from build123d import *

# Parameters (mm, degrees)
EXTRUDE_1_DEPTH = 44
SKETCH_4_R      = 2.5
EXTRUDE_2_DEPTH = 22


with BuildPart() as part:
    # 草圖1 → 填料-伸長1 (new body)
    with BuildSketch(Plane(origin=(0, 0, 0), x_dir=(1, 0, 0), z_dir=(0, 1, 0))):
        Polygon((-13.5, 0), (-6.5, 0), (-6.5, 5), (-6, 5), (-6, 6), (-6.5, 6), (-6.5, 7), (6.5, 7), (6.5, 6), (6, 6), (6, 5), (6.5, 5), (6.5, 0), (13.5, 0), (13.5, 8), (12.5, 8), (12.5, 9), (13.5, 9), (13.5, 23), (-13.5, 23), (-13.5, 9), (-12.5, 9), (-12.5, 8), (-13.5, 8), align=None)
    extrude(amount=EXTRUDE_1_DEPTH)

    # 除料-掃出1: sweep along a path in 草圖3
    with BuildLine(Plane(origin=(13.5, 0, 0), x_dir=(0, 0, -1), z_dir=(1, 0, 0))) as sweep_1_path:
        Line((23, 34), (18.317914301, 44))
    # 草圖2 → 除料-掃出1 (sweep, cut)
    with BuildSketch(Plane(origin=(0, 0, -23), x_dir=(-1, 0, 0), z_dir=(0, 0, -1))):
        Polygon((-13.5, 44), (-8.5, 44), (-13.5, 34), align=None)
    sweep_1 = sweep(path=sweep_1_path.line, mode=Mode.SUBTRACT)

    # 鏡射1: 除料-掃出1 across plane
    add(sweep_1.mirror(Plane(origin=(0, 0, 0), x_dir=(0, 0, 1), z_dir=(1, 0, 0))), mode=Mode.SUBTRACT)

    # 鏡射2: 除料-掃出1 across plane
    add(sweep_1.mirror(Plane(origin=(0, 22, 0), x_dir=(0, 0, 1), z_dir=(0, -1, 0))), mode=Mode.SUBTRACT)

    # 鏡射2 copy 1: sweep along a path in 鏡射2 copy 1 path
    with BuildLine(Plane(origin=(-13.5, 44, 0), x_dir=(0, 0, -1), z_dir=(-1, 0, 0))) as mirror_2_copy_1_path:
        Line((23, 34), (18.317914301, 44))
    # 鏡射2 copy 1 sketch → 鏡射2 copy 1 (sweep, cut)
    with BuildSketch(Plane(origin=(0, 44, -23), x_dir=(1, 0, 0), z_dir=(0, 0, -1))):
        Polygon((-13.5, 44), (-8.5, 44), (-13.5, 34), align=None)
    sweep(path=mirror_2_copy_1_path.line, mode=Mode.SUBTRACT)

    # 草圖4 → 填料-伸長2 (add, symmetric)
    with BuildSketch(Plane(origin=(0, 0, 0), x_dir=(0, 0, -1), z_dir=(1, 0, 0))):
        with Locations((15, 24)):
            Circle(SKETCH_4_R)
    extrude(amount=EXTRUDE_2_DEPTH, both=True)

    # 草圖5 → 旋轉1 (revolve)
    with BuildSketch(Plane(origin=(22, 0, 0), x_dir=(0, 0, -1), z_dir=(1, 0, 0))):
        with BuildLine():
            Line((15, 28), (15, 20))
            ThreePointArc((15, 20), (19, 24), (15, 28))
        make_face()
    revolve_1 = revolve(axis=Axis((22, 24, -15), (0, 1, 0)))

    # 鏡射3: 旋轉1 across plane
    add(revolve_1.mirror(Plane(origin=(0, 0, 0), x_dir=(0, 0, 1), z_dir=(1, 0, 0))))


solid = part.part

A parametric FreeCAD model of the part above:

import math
import FreeCAD as App
import Part
import Sketcher
from FreeCAD import Vector

doc = App.newDocument("Part")
body = doc.addObject("PartDesign::Body", "Body")

# Sketch on XZ plane
sketch1 = doc.addObject("Sketcher::SketchObject", "Sketch")
body.addObject(sketch1)
sketch1.AttachmentSupport = (doc.XZ_Plane, [""])
sketch1.MapMode = "FlatFace"
sketch1.addGeometry([
    Part.LineSegment(Vector(-13.5, 0, 0), Vector(-6.5, 0, 0)),  # 0
    Part.LineSegment(Vector(-6.5, 0, 0), Vector(-6.5, -5, 0)),  # 1
    Part.LineSegment(Vector(-6.5, -5, 0), Vector(-6, -5, 0)),  # 2
    Part.LineSegment(Vector(-6, -5, 0), Vector(-6, -6, 0)),  # 3
    Part.LineSegment(Vector(-6, -6, 0), Vector(-6.5, -6, 0)),  # 4
    Part.LineSegment(Vector(-6.5, -6, 0), Vector(-6.5, -7, 0)),  # 5
    Part.LineSegment(Vector(-6.5, -7, 0), Vector(6.5, -7, 0)),  # 6
    Part.LineSegment(Vector(6.5, -7, 0), Vector(6.5, -6, 0)),  # 7
    Part.LineSegment(Vector(6.5, -6, 0), Vector(6, -6, 0)),  # 8
    Part.LineSegment(Vector(6, -6, 0), Vector(6, -5, 0)),  # 9
    Part.LineSegment(Vector(6, -5, 0), Vector(6.5, -5, 0)),  # 10
    Part.LineSegment(Vector(6.5, -5, 0), Vector(6.5, 0, 0)),  # 11
    Part.LineSegment(Vector(6.5, 0, 0), Vector(13.5, 0, 0)),  # 12
    Part.LineSegment(Vector(13.5, 0, 0), Vector(13.5, -8, 0)),  # 13
    Part.LineSegment(Vector(13.5, -8, 0), Vector(12.5, -8, 0)),  # 14
    Part.LineSegment(Vector(12.5, -8, 0), Vector(12.5, -9, 0)),  # 15
    Part.LineSegment(Vector(12.5, -9, 0), Vector(13.5, -9, 0)),  # 16
    Part.LineSegment(Vector(13.5, -9, 0), Vector(13.5, -23, 0)),  # 17
    Part.LineSegment(Vector(13.5, -23, 0), Vector(-13.5, -23, 0)),  # 18
    Part.LineSegment(Vector(-13.5, -23, 0), Vector(-13.5, -9, 0)),  # 19
    Part.LineSegment(Vector(-13.5, -9, 0), Vector(-12.5, -9, 0)),  # 20
    Part.LineSegment(Vector(-12.5, -9, 0), Vector(-12.5, -8, 0)),  # 21
    Part.LineSegment(Vector(-12.5, -8, 0), Vector(-13.5, -8, 0)),  # 22
    Part.LineSegment(Vector(-13.5, -8, 0), Vector(-13.5, 0, 0)),  # 23
], False)
sketch1.addConstraint([
    Sketcher.Constraint("Coincident", 0, 2, 1, 1),
    Sketcher.Constraint("Coincident", 1, 2, 2, 1),
    Sketcher.Constraint("Coincident", 2, 2, 3, 1),
    Sketcher.Constraint("Coincident", 3, 2, 4, 1),
    Sketcher.Constraint("Coincident", 4, 2, 5, 1),
    Sketcher.Constraint("Coincident", 5, 2, 6, 1),
    Sketcher.Constraint("Coincident", 6, 2, 7, 1),
    Sketcher.Constraint("Coincident", 7, 2, 8, 1),
    Sketcher.Constraint("Coincident", 8, 2, 9, 1),
    Sketcher.Constraint("Coincident", 9, 2, 10, 1),
    Sketcher.Constraint("Coincident", 10, 2, 11, 1),
    Sketcher.Constraint("Coincident", 11, 2, 12, 1),
    Sketcher.Constraint("Coincident", 12, 2, 13, 1),
    Sketcher.Constraint("Coincident", 13, 2, 14, 1),
    Sketcher.Constraint("Coincident", 14, 2, 15, 1),
    Sketcher.Constraint("Coincident", 15, 2, 16, 1),
    Sketcher.Constraint("Coincident", 16, 2, 17, 1),
    Sketcher.Constraint("Coincident", 17, 2, 18, 1),
    Sketcher.Constraint("Coincident", 18, 2, 19, 1),
    Sketcher.Constraint("Coincident", 19, 2, 20, 1),
    Sketcher.Constraint("Coincident", 20, 2, 21, 1),
    Sketcher.Constraint("Coincident", 21, 2, 22, 1),
    Sketcher.Constraint("Coincident", 22, 2, 23, 1),
    Sketcher.Constraint("Coincident", 23, 2, 0, 1),
    Sketcher.Constraint("Horizontal", 0),
    Sketcher.Constraint("Vertical", 1),
    Sketcher.Constraint("Horizontal", 2),
    Sketcher.Constraint("Vertical", 3),
    Sketcher.Constraint("Horizontal", 4),
    Sketcher.Constraint("Vertical", 5),
    Sketcher.Constraint("Horizontal", 6),
    Sketcher.Constraint("Vertical", 7),
    Sketcher.Constraint("Horizontal", 8),
    Sketcher.Constraint("Vertical", 9),
    Sketcher.Constraint("Horizontal", 10),
    Sketcher.Constraint("Vertical", 11),
    Sketcher.Constraint("Horizontal", 12),
    Sketcher.Constraint("Vertical", 13),
    Sketcher.Constraint("Horizontal", 14),
    Sketcher.Constraint("Vertical", 15),
    Sketcher.Constraint("Horizontal", 16),
    Sketcher.Constraint("Vertical", 17),
    Sketcher.Constraint("Horizontal", 18),
    Sketcher.Constraint("Vertical", 19),
    Sketcher.Constraint("Horizontal", 20),
    Sketcher.Constraint("Vertical", 21),
    Sketcher.Constraint("Horizontal", 22),
    Sketcher.Constraint("Vertical", 23),
    Sketcher.Constraint("Symmetric", 0, 2, 11, 2, -1, 1),
    Sketcher.Constraint("Symmetric", 4, 2, 7, 2, -2),
    Sketcher.Constraint("Symmetric", 2, 2, 9, 2, -2),
    Sketcher.Constraint("Symmetric", 16, 2, 19, 2, -2),
    Sketcher.Constraint("Symmetric", 14, 2, 21, 2, -2),
    Sketcher.Constraint("Symmetric", 12, 2, 23, 2, -2),
    Sketcher.Constraint("Vertical", 1, 2, 4, 2),
    Sketcher.Constraint("Vertical", 13, 2, 16, 2),
    Sketcher.Constraint("Equal", 22, 3),
    Sketcher.Constraint("Equal", 3, 5),
    Sketcher.Constraint("Equal", 9, 15),
    Sketcher.Constraint("DistanceX", 0, 1, 0, 2, 7.0),
    Sketcher.Constraint("DistanceX", 6, 1, 6, 2, 13.0),
    Sketcher.Constraint("DistanceX", 14, 2, 14, 1, 1.0),
    Sketcher.Constraint("DistanceY", 1, 2, 1, 1, 5.0),
    Sketcher.Constraint("DistanceY", 13, 2, 13, 1, 8.0),
    Sketcher.Constraint("DistanceY", 17, 2, 17, 1, 14.0),
    Sketcher.Constraint("DistanceX", 2, 1, 2, 2, 0.5),
])
pad1 = doc.addObject("PartDesign::Pad", "Pad")
body.addObject(pad1)
pad1.Profile = sketch1
pad1.Length = 44
pad1.Reversed = True

# Sketch on XY plane
sketch2 = doc.addObject("Sketcher::SketchObject", "Sketch001")
body.addObject(sketch2)
sketch2.AttachmentSupport = (doc.XY_Plane, [""])
sketch2.MapMode = "FlatFace"
sketch2.AttachmentOffset = App.Placement(Vector(0, 0, -23), App.Rotation())
sketch2.addGeometry([
    Part.LineSegment(Vector(8.5, 44, 0), Vector(13.5, 44, 0)),
    Part.LineSegment(Vector(13.5, 44, 0), Vector(13.5, 34, 0)),
    Part.LineSegment(Vector(13.5, 34, 0), Vector(8.5, 44, 0)),
], False)
sketch2.addConstraint([
    Sketcher.Constraint("Coincident", 0, 2, 1, 1),
    Sketcher.Constraint("Coincident", 1, 2, 2, 1),
    Sketcher.Constraint("Coincident", 2, 2, 0, 1),
    Sketcher.Constraint("Horizontal", 0),
    Sketcher.Constraint("Vertical", 1),
    Sketcher.Constraint("DistanceX", 0, 1, 0, 2, 5.0),
    Sketcher.Constraint("DistanceY", 1, 2, 1, 1, 10.0),
    Sketcher.Constraint("DistanceY", -1, 1, 0, 2, 44.0),
    Sketcher.Constraint("DistanceX", -1, 1, 0, 2, 13.5),
])

# Sketch on an angled plane
sketch3 = doc.addObject("Sketcher::SketchObject", "Sketch002")
body.addObject(sketch3)
sketch3.Placement = App.Placement(Vector(0, 14.945837, -31.921323), App.Rotation(Vector(0, -0.90564729, -0.424031822), Vector(1, 0, 0), Vector(0, -0.424031822, 0.90564729), "ZXY"))
sketch3.addGeometry(Part.LineSegment(Vector(-21.039276, 13.5, 0), Vector(-32.081102, 13.5, 0)), False)
sketch3.addConstraint([
    Sketcher.Constraint("Horizontal", 0),
    Sketcher.Constraint("DistanceY", -1, 1, 0, 1, 13.5),
    Sketcher.Constraint("DistanceX", 0, 2, 0, 1, 11.041826),
    Sketcher.Constraint("DistanceX", 0, 1, -1, 1, 21.039276),
])
doc.recompute()

subtractivepipe = doc.addObject("PartDesign::SubtractivePipe", "SubtractivePipe")
body.addObject(subtractivepipe)
subtractivepipe.Profile = sketch2
subtractivepipe.Spine = (sketch3, ["Edge1"])
doc.recompute()

mirrored = doc.addObject("PartDesign::Mirrored", "Mirrored")
body.addObject(mirrored)
mirrored.Originals = [subtractivepipe]
mirrored.MirrorPlane = (doc.YZ_Plane, [""])
body.Tip = mirrored
doc.recompute()

datumplane = doc.addObject("PartDesign::Plane", "DatumPlane")
body.addObject(datumplane)
datumplane.AttachmentSupport = (doc.XZ_Plane, [""])
datumplane.MapMode = "FlatFace"
datumplane.AttachmentOffset = App.Placement(Vector(0, 0, -22), App.Rotation())
mirrored2 = doc.addObject("PartDesign::Mirrored", "Mirrored001")
body.addObject(mirrored2)
mirrored2.Originals = [subtractivepipe]
mirrored2.MirrorPlane = (datumplane, [""])
body.Tip = mirrored2

# Sketch on XY plane
sketch4 = doc.addObject("Sketcher::SketchObject", "Sketch003")
body.addObject(sketch4)
sketch4.AttachmentSupport = (doc.XY_Plane, [""])
sketch4.MapMode = "FlatFace"
sketch4.AttachmentOffset = App.Placement(Vector(0, 0, -23), App.Rotation())
sketch4.addGeometry([
    Part.LineSegment(Vector(-8.5, 0, 0), Vector(-13.5, 0, 0)),
    Part.LineSegment(Vector(-13.5, 0, 0), Vector(-13.5, 10, 0)),
    Part.LineSegment(Vector(-13.5, 10, 0), Vector(-8.5, 0, 0)),
], False)
sketch4.addConstraint([
    Sketcher.Constraint("Coincident", 0, 2, 1, 1),
    Sketcher.Constraint("Coincident", 1, 2, 2, 1),
    Sketcher.Constraint("Coincident", 2, 2, 0, 1),
    Sketcher.Constraint("Horizontal", 0),
    Sketcher.Constraint("Vertical", 1),
    Sketcher.Constraint("PointOnObject", 0, 2, -1),
    Sketcher.Constraint("DistanceX", 0, 2, 0, 1, 5.0),
    Sketcher.Constraint("DistanceY", 1, 1, 1, 2, 10.0),
    Sketcher.Constraint("DistanceX", 0, 2, -1, 1, 13.5),
])

# Sketch on an angled plane
sketch5 = doc.addObject("Sketcher::SketchObject", "Sketch004")
body.addObject(sketch5)
sketch5.Placement = App.Placement(Vector(0, -7.034505, -15.024299), App.Rotation(Vector(0, 0.90564729, -0.424031822), Vector(1, 0, 0), Vector(0, -0.424031822, -0.90564729), "ZXY"))
sketch5.addGeometry(Part.LineSegment(Vector(18.809205, -13.5, 0), Vector(7.767379, -13.5, 0)), False)
sketch5.addConstraint([
    Sketcher.Constraint("Horizontal", 0),
    Sketcher.Constraint("DistanceY", 0, 1, -1, 1, 13.5),
    Sketcher.Constraint("DistanceX", 0, 2, 0, 1, 11.041826),
    Sketcher.Constraint("DistanceX", -1, 1, 0, 2, 7.767379),
])
doc.recompute()

subtractivepipe2 = doc.addObject("PartDesign::SubtractivePipe", "SubtractivePipe001")
body.addObject(subtractivepipe2)
subtractivepipe2.Profile = sketch4
subtractivepipe2.Spine = (sketch5, ["Edge1"])

# Sketch on YZ plane
sketch6 = doc.addObject("Sketcher::SketchObject", "Sketch005")
body.addObject(sketch6)
sketch6.AttachmentSupport = (doc.YZ_Plane, [""])
sketch6.MapMode = "FlatFace"
sketch6.addGeometry(Part.Circle(Vector(24, -15, 0), Vector(0, 0, 1), 2.5), False)
sketch6.addConstraint([
    Sketcher.Constraint("Diameter", 0, 5.0),
    Sketcher.Constraint("DistanceX", -1, 1, 0, 3, 24.0),
    Sketcher.Constraint("DistanceY", 0, 3, -1, 1, 15.0),
])
pad2 = doc.addObject("PartDesign::Pad", "Pad001")
body.addObject(pad2)
pad2.Profile = sketch6
pad2.Length = 44
pad2.Midplane = True

# Sketch on YZ plane
sketch7 = doc.addObject("Sketcher::SketchObject", "Sketch006")
body.addObject(sketch7)
sketch7.AttachmentSupport = (doc.YZ_Plane, [""])
sketch7.MapMode = "FlatFace"
sketch7.AttachmentOffset = App.Placement(Vector(0, 0, 22), App.Rotation())
sketch7.addGeometry([
    Part.LineSegment(Vector(28, -15, 0), Vector(20, -15, 0)),
    Part.ArcOfCircle(Part.Circle(Vector(24, -15, 0), Vector(0, 0, 1), 4), math.radians(180), math.radians(360)),
], False)
sketch7.addGeometry(Part.LineSegment(Vector(20, -15, 0), Vector(28, -15, 0)), True)  # axis
sketch7.addConstraint([
    Sketcher.Constraint("Coincident", 0, 1, 1, 2),
    Sketcher.Constraint("Coincident", 1, 1, 0, 2),
    Sketcher.Constraint("Horizontal", 0),
    Sketcher.Constraint("Horizontal", 2),
    Sketcher.Constraint("Coincident", 2, 1, 1, 1),
    Sketcher.Constraint("Horizontal", 1, 3, 0, 1),
    Sketcher.Constraint("Equal", 0, 2),
    Sketcher.Constraint("Radius", 1, 4.0),
    Sketcher.Constraint("DistanceX", -1, 1, 1, 3, 24.0),
    Sketcher.Constraint("DistanceY", 1, 3, -1, 1, 15.0),
])
revolution = doc.addObject("PartDesign::Revolution", "Revolution")
body.addObject(revolution)
revolution.Profile = sketch7
revolution.ReferenceAxis = (sketch7, ["Axis0"])
revolution.Angle = 360
doc.recompute()

mirrored3 = doc.addObject("PartDesign::Mirrored", "Mirrored002")
body.addObject(mirrored3)
mirrored3.Originals = [revolution]
mirrored3.MirrorPlane = (doc.YZ_Plane, [""])
body.Tip = mirrored3

doc.recompute()
